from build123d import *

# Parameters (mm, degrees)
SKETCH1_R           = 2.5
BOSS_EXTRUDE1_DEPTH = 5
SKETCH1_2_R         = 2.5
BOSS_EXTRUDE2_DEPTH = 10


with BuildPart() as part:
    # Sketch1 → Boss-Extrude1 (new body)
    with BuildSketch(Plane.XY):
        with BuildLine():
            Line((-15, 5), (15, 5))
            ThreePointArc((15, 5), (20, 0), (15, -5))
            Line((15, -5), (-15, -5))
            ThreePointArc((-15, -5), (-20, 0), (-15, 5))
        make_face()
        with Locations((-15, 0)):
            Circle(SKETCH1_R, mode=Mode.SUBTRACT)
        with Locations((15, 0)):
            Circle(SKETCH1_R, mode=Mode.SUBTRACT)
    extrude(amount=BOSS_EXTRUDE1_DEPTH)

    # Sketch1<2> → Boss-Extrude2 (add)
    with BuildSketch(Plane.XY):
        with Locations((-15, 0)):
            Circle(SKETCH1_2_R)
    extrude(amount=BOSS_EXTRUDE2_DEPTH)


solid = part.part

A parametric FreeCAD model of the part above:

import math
import FreeCAD as App
import Part
import Sketcher

doc = App.newDocument("Part")
body = doc.addObject("PartDesign::Body", "Body")

# Sketch on XY plane
sketch1 = body.newObject("Sketcher::SketchObject", "Sketch")
sketch1.AttachmentSupport = (doc.getObject("XY_Plane"), [""])
sketch1.MapMode = "FlatFace"
sketch1.addGeometry(Part.LineSegment(App.Vector(15, 5, 0), App.Vector(-15, 5, 0)), False)
sketch1.addGeometry(Part.ArcOfCircle(Part.Circle(App.Vector(-15, 0, 0), App.Vector(0, 0, 1), 5), math.radians(90), math.radians(270)), False)
sketch1.addGeometry(Part.LineSegment(App.Vector(-15, -5, 0), App.Vector(15, -5, 0)), False)
sketch1.addGeometry(Part.ArcOfCircle(Part.Circle(App.Vector(15, 0, 0), App.Vector(0, 0, 1), 5), math.radians(-90), math.radians(90)), False)
sketch1.addGeometry(Part.Circle(App.Vector(15, 0, 0), App.Vector(0, 0, 1), 2.5), False)
sketch1.addGeometry(Part.Circle(App.Vector(-15, 0, 0), App.Vector(0, 0, 1), 2.5), False)
sketch1.addConstraint(Sketcher.Constraint("Tangent", 0, 2, 1, 1))
sketch1.addConstraint(Sketcher.Constraint("Tangent", 1, 2, 2, 1))
sketch1.addConstraint(Sketcher.Constraint("Tangent", 2, 2, 3, 1))
sketch1.addConstraint(Sketcher.Constraint("Tangent", 3, 2, 0, 1))
sketch1.addConstraint(Sketcher.Constraint("Horizontal", 0))
sketch1.addConstraint(Sketcher.Constraint("Horizontal", 2))
sketch1.addConstraint(Sketcher.Constraint("Coincident", 4, 3, 3, 3))
sketch1.addConstraint(Sketcher.Constraint("Coincident", 5, 3, 1, 3))
sketch1.addConstraint(Sketcher.Constraint("Equal", 4, 5))
sketch1.addConstraint(Sketcher.Constraint("Symmetric", 1, 3, 3, 3, -1, 1))
sketch1.addConstraint(Sketcher.Constraint("Diameter", 4, 5.0))
sketch1.addConstraint(Sketcher.Constraint("Radius", 1, 5.0))
sketch1.addConstraint(Sketcher.Constraint("DistanceX", 0, 2, 0, 1, 30.0))
pad1 = body.newObject("PartDesign::Pad", "Pad")
pad1.Profile = sketch1
pad1.Length = 5

# Sketch on XY plane
sketch2 = body.newObject("Sketcher::SketchObject", "Sketch001")
sketch2.AttachmentSupport = (doc.getObject("XY_Plane"), [""])
sketch2.MapMode = "FlatFace"
sketch2.addGeometry(Part.Circle(App.Vector(-15, 0, 0), App.Vector(0, 0, 1), 2.5), False)
sketch2.addConstraint(Sketcher.Constraint("PointOnObject", 0, 3, -1))
sketch2.addConstraint(Sketcher.Constraint("Diameter", 0, 5.0))
sketch2.addConstraint(Sketcher.Constraint("DistanceX", 0, 3, -1, 1, 15.0))
pad2 = body.newObject("PartDesign::Pad", "Pad001")
pad2.Profile = sketch2
pad2.Length = 10

doc.recompute()
